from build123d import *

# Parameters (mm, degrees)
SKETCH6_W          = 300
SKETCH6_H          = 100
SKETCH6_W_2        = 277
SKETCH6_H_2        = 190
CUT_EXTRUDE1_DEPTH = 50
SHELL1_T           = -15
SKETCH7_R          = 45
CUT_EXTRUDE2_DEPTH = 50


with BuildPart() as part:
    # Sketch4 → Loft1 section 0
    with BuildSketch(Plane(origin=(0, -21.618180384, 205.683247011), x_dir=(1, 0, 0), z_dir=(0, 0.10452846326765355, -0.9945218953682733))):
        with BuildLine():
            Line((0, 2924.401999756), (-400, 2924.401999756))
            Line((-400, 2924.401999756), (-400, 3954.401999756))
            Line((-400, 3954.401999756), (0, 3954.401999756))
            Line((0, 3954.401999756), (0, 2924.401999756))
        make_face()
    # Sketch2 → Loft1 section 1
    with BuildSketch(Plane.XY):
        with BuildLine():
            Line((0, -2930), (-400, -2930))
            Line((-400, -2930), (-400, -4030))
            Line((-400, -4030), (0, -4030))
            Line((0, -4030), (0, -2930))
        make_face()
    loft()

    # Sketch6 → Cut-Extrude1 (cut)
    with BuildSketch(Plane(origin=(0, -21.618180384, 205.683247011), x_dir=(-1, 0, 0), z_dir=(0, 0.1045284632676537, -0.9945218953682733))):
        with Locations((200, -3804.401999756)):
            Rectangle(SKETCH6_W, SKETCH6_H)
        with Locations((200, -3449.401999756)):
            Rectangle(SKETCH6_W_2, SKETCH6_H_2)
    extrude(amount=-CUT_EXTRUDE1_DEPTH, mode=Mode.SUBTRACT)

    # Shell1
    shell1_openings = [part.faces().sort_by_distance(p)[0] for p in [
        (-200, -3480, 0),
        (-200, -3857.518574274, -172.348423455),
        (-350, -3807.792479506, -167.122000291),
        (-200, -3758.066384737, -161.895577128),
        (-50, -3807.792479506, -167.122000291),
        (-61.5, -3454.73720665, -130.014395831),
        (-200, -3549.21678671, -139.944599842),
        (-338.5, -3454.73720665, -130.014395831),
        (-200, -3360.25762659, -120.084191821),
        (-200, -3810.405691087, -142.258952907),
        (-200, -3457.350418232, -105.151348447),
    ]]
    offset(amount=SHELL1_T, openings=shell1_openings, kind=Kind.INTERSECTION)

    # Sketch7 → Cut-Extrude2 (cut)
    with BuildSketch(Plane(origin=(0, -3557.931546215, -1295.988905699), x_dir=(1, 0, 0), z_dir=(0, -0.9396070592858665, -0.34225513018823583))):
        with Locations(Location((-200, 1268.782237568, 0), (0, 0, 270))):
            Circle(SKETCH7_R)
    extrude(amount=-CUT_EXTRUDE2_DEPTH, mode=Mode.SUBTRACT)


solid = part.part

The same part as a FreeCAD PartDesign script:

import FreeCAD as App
import Part
import Sketcher

V = App.Vector
Q = App.Units.Quantity


def faces_at(feature, points):
    """Names of the faces that lie closest to the given points."""
    faces = feature.Shape.Faces
    near = lambda p: min(range(len(faces)), key=lambda i: faces[i].distToShape(Part.Vertex(*p))[0])
    return sorted({f"Face{near(p) + 1}" for p in points})

doc = App.newDocument("Part")
body = doc.addObject("PartDesign::Body", "Body")

# Sketch on an angled plane
sketch1 = doc.addObject("Sketcher::SketchObject", "Sketch")
body.addObject(sketch1)
sketch1.Placement = App.Placement(V(0, -21.61818, 205.683247), App.Rotation(V(1, 0, 0), V(0, -0.994521895, -0.104528463), V(0, 0.104528463, -0.994521895), "ZXY"))
sketch1.addGeometry([
    Part.LineSegment(V(-400, 2924, 0), V(0, 2924, 0)),
    Part.LineSegment(V(0, 2924, 0), V(0, 3954, 0)),
    Part.LineSegment(V(0, 3954, 0), V(-400, 3954, 0)),
    Part.LineSegment(V(-400, 3954, 0), V(-400, 2924, 0)),
], False)
sketch1.addConstraint([
    Sketcher.Constraint("Coincident", 0, 2, 1, 1),
    Sketcher.Constraint("Coincident", 1, 2, 2, 1),
    Sketcher.Constraint("Coincident", 2, 2, 3, 1),
    Sketcher.Constraint("Coincident", 3, 2, 0, 1),
    Sketcher.Constraint("Horizontal", 0),
    Sketcher.Constraint("Vertical", 1),
    Sketcher.Constraint("Horizontal", 2),
    Sketcher.Constraint("Vertical", 3),
    Sketcher.Constraint("PointOnObject", 0, 2, -2),
    Sketcher.Constraint("DistanceX", 0, 1, 0, 2, Q("400 mm")),
    Sketcher.Constraint("DistanceY", 1, 1, 1, 2, Q("1029.999999 mm")),
    Sketcher.Constraint("DistanceY", -1, 1, 0, 2, Q("2924.401997 mm")),
])

# Sketch on XY plane
sketch2 = doc.addObject("Sketcher::SketchObject", "Sketch001")
body.addObject(sketch2)
sketch2.AttachmentSupport = (doc.XY_Plane, [""])
sketch2.MapMode = "FlatFace"
sketch2.addGeometry([
    Part.LineSegment(V(0, -2930, 0), V(-400, -2930, 0)),
    Part.LineSegment(V(-400, -2930, 0), V(-400, -4030, 0)),
    Part.LineSegment(V(-400, -4030, 0), V(0, -4030, 0)),
    Part.LineSegment(V(0, -4030, 0), V(0, -2930, 0)),
], False)
sketch2.addConstraint([
    Sketcher.Constraint("Coincident", 0, 2, 1, 1),
    Sketcher.Constraint("Coincident", 1, 2, 2, 1),
    Sketcher.Constraint("Coincident", 2, 2, 3, 1),
    Sketcher.Constraint("Coincident", 3, 2, 0, 1),
    Sketcher.Constraint("Horizontal", 0),
    Sketcher.Constraint("Vertical", 1),
    Sketcher.Constraint("Horizontal", 2),
    Sketcher.Constraint("Vertical", 3),
    Sketcher.Constraint("PointOnObject", 2, 2, -2),
    Sketcher.Constraint("DistanceX", 0, 2, 0, 1, Q("400 mm")),
    Sketcher.Constraint("DistanceY", 1, 2, 1, 1, Q("1100 mm")),
    Sketcher.Constraint("DistanceY", 0, 2, -1, 1, Q("2930 mm")),
])

additiveloft = doc.addObject("PartDesign::AdditiveLoft", "AdditiveLoft")
body.addObject(additiveloft)
additiveloft.Profile = sketch1
additiveloft.Sections = [sketch2]

# Sketch on an angled plane
sketch3 = doc.addObject("Sketcher::SketchObject", "Sketch002")
body.addObject(sketch3)
sketch3.Placement = App.Placement(V(0, -21.61818, 205.683247), App.Rotation(V(-1, 0, 0), V(0, 0.994521895, 0.104528463), V(0, 0.104528463, -0.994521895), "ZXY"))
sketch3.addGeometry([
    Part.LineSegment(V(50, -3754, 0), V(50, -3854, 0)),  # 0
    Part.LineSegment(V(50, -3854, 0), V(350, -3854, 0)),  # 1
    Part.LineSegment(V(350, -3854, 0), V(350, -3754, 0)),  # 2
    Part.LineSegment(V(350, -3754, 0), V(50, -3754, 0)),  # 3
    Part.LineSegment(V(62, -3354, 0), V(62, -3544, 0)),  # 4
    Part.LineSegment(V(62, -3544, 0), V(338, -3544, 0)),  # 5
    Part.LineSegment(V(338, -3544, 0), V(338, -3354, 0)),  # 6
    Part.LineSegment(V(338, -3354, 0), V(62, -3354, 0)),  # 7
], False)
sketch3.addConstraint([
    Sketcher.Constraint("Coincident", 0, 2, 1, 1),
    Sketcher.Constraint("Coincident", 1, 2, 2, 1),
    Sketcher.Constraint("Coincident", 2, 2, 3, 1),
    Sketcher.Constraint("Coincident", 3, 2, 0, 1),
    Sketcher.Constraint("Coincident", 4, 2, 5, 1),
    Sketcher.Constraint("Coincident", 5, 2, 6, 1),
    Sketcher.Constraint("Coincident", 6, 2, 7, 1),
    Sketcher.Constraint("Coincident", 7, 2, 4, 1),
    Sketcher.Constraint("Vertical", 0),
    Sketcher.Constraint("Horizontal", 1),
    Sketcher.Constraint("Vertical", 2),
    Sketcher.Constraint("Horizontal", 3),
    Sketcher.Constraint("Vertical", 4),
    Sketcher.Constraint("Horizontal", 5),
    Sketcher.Constraint("Vertical", 6),
    Sketcher.Constraint("Horizontal", 7),
    Sketcher.Constraint("DistanceX", 1, 1, 1, 2, Q("300 mm")),
    Sketcher.Constraint("DistanceX", 5, 1, 5, 2, Q("277 mm")),
    Sketcher.Constraint("DistanceY", 0, 2, 0, 1, Q("100 mm")),
    Sketcher.Constraint("DistanceY", 4, 2, 4, 1, Q("190 mm")),
    Sketcher.Constraint("DistanceX", -1, 1, 0, 2, Q("50 mm")),
    Sketcher.Constraint("DistanceY", 3, 2, 4, 2, Q("210 mm")),
    Sketcher.Constraint("DistanceX", -1, 1, 4, 2, Q("61.5 mm")),
    Sketcher.Constraint("DistanceY", 0, 2, -1, 1, Q("3854.401997 mm")),
])
pocket1 = doc.addObject("PartDesign::Pocket", "Pocket")
body.addObject(pocket1)
pocket1.Profile = sketch3
pocket1.Length = 50
doc.recompute()

thickness = doc.addObject("PartDesign::Thickness", "Thickness")
body.addObject(thickness)
thickness.Base = (pocket1, faces_at(pocket1, [
    (-200, -3480, 0),
    (-200, -3857.519, -172.348),
    (-350, -3807.792, -167.122),
    (-200, -3758.066, -161.896),
    (-50, -3807.792, -167.122),
    (-61.5, -3454.737, -130.014),
    (-200, -3549.217, -139.945),
    (-338.5, -3454.737, -130.014),
    (-200, -3360.258, -120.084),
    (-200, -3810.406, -142.259),
    (-200, -3457.35, -105.151),
]))
thickness.Value = 15
thickness.Reversed = True
thickness.Join = "Intersection"

# Sketch on an angled plane
sketch4 = doc.addObject("Sketcher::SketchObject", "Sketch003")
body.addObject(sketch4)
sketch4.Placement = App.Placement(V(0, -3557.931546, -1295.988906), App.Rotation(V(1, 0, 0), V(0, -0.34225513, 0.939607059), V(0, -0.939607059, -0.34225513), "ZXY"))
sketch4.addGeometry(Part.Circle(V(-200, 1269, 0), V(0, 0, 1), 45), False)
sketch4.addConstraint([
    Sketcher.Constraint("Diameter", 0, Q("90 mm")),
    Sketcher.Constraint("DistanceX", 0, 3, -1, 1, Q("200 mm")),
    Sketcher.Constraint("DistanceY", -1, 1, 0, 3, Q("1268.782237 mm")),
])
pocket2 = doc.addObject("PartDesign::Pocket", "Pocket001")
body.addObject(pocket2)
pocket2.Profile = sketch4
pocket2.Length = 50

doc.recompute()
